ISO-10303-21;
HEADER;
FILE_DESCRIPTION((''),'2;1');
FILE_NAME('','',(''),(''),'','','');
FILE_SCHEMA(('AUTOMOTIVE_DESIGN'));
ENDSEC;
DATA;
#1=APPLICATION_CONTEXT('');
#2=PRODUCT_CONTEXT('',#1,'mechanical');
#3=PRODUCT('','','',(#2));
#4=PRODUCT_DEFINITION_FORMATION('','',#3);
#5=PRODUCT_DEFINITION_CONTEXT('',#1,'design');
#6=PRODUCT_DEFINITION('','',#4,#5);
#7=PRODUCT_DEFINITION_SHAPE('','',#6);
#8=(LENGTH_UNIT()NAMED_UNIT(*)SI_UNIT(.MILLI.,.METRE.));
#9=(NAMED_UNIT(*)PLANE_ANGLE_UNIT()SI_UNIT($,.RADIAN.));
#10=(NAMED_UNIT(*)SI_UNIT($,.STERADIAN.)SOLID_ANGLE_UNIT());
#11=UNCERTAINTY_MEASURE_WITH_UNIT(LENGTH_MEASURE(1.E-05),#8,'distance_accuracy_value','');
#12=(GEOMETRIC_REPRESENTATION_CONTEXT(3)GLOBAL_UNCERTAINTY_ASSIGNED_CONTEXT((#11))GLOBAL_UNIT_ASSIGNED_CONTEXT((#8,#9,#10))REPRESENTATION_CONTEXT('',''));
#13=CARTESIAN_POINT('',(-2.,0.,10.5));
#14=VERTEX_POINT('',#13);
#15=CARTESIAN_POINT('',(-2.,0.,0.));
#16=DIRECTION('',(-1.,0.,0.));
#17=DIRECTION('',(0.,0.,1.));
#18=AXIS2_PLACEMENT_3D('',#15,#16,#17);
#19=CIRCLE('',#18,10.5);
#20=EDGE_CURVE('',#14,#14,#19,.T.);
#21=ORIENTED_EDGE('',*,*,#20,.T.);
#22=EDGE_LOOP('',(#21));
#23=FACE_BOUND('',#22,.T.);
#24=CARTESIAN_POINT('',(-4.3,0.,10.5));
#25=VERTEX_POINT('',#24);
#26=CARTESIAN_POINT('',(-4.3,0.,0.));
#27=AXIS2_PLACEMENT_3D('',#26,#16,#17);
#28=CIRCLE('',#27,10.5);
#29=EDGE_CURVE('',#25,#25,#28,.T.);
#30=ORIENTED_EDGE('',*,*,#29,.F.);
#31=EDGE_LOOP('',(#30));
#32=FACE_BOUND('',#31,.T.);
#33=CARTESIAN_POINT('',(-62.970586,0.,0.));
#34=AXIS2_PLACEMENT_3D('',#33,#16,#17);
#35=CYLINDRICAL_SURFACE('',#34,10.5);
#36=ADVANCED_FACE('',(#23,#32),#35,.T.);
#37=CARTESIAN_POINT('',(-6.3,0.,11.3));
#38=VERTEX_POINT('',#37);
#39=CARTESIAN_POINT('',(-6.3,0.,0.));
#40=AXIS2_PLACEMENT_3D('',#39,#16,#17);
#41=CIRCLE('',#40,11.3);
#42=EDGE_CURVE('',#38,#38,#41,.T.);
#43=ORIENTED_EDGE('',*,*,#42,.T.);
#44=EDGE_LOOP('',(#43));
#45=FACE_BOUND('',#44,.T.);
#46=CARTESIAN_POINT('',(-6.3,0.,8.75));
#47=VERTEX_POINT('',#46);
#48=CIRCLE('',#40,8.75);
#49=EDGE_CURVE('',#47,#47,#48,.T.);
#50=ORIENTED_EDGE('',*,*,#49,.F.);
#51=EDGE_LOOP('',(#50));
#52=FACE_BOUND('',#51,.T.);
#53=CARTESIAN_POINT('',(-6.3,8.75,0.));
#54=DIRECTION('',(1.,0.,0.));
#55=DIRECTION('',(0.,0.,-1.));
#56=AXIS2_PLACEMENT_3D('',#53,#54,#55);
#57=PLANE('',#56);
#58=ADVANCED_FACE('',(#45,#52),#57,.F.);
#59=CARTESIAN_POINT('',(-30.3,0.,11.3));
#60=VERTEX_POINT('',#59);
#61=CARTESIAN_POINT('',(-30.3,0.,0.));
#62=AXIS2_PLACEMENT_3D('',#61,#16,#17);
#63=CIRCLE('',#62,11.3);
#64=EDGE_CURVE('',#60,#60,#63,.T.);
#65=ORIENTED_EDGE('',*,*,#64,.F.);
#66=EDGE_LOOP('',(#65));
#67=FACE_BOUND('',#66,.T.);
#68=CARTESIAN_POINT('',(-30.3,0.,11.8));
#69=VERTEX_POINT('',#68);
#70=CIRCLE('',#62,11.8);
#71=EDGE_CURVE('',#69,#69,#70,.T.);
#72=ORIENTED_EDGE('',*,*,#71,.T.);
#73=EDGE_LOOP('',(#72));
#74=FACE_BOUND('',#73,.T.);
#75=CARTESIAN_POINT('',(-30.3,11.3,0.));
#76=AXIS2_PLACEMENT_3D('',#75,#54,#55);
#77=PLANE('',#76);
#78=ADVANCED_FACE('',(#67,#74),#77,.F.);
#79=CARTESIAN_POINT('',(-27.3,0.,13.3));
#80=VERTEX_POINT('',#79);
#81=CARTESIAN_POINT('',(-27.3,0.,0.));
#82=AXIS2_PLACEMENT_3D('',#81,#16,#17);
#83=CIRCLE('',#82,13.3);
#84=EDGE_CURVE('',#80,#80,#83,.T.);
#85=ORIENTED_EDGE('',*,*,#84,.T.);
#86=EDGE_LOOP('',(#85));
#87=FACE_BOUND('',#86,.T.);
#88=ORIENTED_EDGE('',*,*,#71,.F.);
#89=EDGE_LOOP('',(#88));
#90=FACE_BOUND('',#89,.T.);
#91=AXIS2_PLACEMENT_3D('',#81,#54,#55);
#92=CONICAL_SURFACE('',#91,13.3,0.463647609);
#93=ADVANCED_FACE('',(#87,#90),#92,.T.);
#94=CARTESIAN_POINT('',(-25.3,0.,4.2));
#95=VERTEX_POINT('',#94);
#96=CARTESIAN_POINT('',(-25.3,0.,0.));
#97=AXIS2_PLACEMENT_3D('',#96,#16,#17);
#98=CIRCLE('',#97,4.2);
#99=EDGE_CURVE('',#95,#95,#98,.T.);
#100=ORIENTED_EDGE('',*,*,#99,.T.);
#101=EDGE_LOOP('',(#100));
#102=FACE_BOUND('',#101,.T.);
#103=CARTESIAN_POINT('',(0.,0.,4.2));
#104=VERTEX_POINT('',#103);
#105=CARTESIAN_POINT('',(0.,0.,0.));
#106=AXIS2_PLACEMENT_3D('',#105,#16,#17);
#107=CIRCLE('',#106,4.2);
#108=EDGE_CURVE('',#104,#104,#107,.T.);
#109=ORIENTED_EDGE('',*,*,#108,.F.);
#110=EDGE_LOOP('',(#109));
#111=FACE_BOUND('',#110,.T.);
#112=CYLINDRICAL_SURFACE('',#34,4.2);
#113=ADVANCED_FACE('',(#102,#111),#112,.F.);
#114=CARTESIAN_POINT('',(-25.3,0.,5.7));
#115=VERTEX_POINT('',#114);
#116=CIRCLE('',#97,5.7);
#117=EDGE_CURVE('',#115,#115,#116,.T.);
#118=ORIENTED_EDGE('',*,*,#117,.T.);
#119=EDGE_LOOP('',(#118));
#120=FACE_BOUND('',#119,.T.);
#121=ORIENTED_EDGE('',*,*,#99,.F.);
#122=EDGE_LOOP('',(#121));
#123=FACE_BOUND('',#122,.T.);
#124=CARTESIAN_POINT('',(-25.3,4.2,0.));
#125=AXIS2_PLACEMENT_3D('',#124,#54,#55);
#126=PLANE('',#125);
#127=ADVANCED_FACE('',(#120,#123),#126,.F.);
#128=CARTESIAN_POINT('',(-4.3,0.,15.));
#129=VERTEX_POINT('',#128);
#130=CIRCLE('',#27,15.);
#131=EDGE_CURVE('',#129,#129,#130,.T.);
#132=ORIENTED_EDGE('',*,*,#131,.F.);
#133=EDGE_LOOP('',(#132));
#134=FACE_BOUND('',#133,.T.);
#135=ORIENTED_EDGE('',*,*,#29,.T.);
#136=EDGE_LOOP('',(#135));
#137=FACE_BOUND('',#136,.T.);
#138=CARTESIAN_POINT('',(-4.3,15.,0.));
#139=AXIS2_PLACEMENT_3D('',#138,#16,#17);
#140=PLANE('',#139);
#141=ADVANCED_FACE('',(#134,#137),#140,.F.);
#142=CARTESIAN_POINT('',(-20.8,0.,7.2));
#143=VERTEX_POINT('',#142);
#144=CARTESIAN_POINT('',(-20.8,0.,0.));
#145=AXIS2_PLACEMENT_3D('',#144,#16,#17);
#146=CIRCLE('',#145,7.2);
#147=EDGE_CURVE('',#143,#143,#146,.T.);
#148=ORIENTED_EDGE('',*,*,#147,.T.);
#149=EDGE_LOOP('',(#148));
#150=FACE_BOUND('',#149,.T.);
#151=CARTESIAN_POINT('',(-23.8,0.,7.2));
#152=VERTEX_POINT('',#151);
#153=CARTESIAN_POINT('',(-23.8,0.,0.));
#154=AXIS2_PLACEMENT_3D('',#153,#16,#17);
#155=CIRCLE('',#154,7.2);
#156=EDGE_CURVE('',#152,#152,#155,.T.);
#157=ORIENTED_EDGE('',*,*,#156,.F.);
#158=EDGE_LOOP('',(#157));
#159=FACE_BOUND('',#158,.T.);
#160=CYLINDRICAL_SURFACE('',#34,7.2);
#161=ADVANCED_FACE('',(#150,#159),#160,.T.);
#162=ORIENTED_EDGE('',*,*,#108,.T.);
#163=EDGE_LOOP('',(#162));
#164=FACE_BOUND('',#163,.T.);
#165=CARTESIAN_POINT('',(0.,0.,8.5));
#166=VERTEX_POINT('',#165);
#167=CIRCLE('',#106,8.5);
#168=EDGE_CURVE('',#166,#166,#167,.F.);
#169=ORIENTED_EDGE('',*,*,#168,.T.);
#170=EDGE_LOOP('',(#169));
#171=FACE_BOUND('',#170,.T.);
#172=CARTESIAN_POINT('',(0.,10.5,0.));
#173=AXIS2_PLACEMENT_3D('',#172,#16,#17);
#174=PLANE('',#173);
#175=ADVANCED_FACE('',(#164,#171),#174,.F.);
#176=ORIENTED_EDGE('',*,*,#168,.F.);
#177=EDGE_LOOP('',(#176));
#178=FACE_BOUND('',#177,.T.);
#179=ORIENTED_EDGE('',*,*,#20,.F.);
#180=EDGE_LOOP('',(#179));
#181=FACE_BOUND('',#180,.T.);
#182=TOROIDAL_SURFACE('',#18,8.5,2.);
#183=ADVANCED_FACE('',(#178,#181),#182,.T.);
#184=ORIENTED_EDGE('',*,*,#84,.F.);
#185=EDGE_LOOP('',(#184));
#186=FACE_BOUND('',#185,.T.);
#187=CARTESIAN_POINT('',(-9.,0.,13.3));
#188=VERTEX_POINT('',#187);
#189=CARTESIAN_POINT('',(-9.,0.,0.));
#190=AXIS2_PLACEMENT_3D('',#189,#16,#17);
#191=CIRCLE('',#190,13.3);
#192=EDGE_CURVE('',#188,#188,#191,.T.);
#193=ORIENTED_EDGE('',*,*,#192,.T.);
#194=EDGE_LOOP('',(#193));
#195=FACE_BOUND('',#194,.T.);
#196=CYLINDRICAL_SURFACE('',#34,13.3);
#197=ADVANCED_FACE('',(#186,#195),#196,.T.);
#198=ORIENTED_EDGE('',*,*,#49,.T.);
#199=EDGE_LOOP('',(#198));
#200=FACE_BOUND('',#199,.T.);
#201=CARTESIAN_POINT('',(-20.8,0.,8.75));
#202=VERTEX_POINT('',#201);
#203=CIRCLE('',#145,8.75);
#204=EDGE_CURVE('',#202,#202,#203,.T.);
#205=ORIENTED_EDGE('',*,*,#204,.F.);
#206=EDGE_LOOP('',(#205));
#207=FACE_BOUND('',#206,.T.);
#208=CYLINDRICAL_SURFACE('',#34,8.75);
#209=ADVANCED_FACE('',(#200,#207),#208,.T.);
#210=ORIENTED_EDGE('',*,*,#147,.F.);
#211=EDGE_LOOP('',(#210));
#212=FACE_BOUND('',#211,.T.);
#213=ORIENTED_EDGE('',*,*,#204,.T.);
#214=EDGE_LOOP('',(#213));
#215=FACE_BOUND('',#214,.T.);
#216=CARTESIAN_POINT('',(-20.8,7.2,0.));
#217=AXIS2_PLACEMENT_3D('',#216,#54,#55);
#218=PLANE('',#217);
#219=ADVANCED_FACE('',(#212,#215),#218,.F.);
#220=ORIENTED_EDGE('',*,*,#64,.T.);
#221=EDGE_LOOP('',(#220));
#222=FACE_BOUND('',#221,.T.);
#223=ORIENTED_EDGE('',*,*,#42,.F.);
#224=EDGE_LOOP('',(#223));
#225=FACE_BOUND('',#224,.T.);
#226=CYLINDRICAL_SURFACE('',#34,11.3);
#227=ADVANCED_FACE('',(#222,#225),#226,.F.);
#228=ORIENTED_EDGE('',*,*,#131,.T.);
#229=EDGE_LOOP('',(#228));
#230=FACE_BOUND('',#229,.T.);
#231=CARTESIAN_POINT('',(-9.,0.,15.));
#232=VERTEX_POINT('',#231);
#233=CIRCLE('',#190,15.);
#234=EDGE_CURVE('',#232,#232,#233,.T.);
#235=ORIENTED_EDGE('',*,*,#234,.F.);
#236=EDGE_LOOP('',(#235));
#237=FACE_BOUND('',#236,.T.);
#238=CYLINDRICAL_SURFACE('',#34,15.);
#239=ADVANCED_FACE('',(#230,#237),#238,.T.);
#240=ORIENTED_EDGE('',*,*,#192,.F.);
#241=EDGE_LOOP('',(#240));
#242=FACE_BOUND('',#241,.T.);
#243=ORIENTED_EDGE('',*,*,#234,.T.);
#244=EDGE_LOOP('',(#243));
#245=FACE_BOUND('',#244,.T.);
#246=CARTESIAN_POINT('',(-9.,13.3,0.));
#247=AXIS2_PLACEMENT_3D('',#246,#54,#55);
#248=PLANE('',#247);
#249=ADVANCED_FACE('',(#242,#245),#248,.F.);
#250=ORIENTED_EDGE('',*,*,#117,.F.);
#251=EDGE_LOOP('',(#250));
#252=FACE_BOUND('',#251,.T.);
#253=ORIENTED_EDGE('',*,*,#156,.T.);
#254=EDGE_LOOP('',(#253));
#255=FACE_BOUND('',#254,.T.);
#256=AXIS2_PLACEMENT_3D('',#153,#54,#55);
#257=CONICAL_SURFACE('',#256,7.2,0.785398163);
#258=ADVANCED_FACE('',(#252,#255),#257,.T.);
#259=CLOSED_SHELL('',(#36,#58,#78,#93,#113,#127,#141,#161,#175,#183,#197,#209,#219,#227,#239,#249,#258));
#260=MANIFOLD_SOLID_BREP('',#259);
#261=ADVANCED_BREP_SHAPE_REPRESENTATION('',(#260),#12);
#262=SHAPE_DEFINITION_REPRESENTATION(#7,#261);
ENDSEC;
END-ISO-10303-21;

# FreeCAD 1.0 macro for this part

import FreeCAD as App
import Part
import Sketcher
from FreeCAD import Vector
Q = App.Units.Quantity


def edges_at(feature, points):
    """Names of the edges that pass closest to the given points."""
    edges = feature.Shape.Edges
    near = lambda p: min(range(len(edges)), key=lambda i: edges[i].distToShape(Part.Vertex(*p))[0])
    return sorted({f"Edge{near(p) + 1}" for p in points})


def add_polygon(sketch, points):
    """Adds a closed chain of lines whose ends are joined by coincident constraints."""
    first, n = sketch.GeometryCount, len(points)
    for a, b in zip(points, points[1:] + points[:1]):
        sketch.addGeometry(Part.LineSegment(App.Vector(*a, 0), App.Vector(*b, 0)), False)
    for i in range(n):
        sketch.addConstraint(Sketcher.Constraint("Coincident", first + i, 2, first + (i + 1) % n, 1))

doc = App.newDocument("Part")
body = doc.addObject("PartDesign::Body", "Body")

sketch1 = doc.addObject("Sketcher::SketchObject", "Sketch")
body.addObject(sketch1)
sketch1.AttachmentSupport = (doc.XY_Plane, [""])
sketch1.MapMode = "FlatFace"
add_polygon(sketch1, [(-30.3, 11.8), (-30.3, 11.3), (-6.3, 11.3), (-6.3, 8.8), (-20.8, 8.8), (-20.8, 7.2), (-23.8, 7.2), (-25.3, 5.7), (-25.3, 4.2), (0, 4.2), (0, 10.5), (-4.3, 10.5), (-4.3, 15), (-9, 15), (-9, 13.3), (-27.3, 13.3)])
sketch1.addConstraint([
    Sketcher.Constraint("Vertical", 0),
    Sketcher.Constraint("Horizontal", 1),
    Sketcher.Constraint("Vertical", 2),
    Sketcher.Constraint("Horizontal", 3),
    Sketcher.Constraint("Vertical", 4),
    Sketcher.Constraint("Horizontal", 5),
    Sketcher.Constraint("Vertical", 7),
    Sketcher.Constraint("Horizontal", 8),
    Sketcher.Constraint("Vertical", 9),
    Sketcher.Constraint("Horizontal", 10),
    Sketcher.Constraint("Vertical", 11),
    Sketcher.Constraint("Horizontal", 12),
    Sketcher.Constraint("Vertical", 13),
    Sketcher.Constraint("Horizontal", 14),
    Sketcher.Constraint("PointOnObject", 8, 2, -2),
    Sketcher.Constraint("DistanceX", 1, 1, 1, 2, Q("24 mm")),
    Sketcher.Constraint("DistanceX", 5, 2, 5, 1, Q("3 mm")),
    Sketcher.Constraint("Angle", 6, Q("-135 deg")),
    Sketcher.Constraint("DistanceX", 3, 2, 3, 1, Q("14.5 mm")),
    Sketcher.Constraint("DistanceX", 8, 1, 8, 2, Q("25.3 mm")),
    Sketcher.Constraint("DistanceX", 10, 2, 10, 1, Q("4.3 mm")),
    Sketcher.Constraint("DistanceX", 12, 2, 12, 1, Q("4.7 mm")),
    Sketcher.Constraint("DistanceX", 14, 2, 14, 1, Q("18.3 mm")),
    Sketcher.Constraint("DistanceY", 0, 2, 0, 1, Q("0.5 mm")),
    Sketcher.Constraint("DistanceY", 7, 2, 7, 1, Q("1.5 mm")),
    Sketcher.Constraint("DistanceY", 9, 1, 9, 2, Q("6.3 mm")),
    Sketcher.Constraint("DistanceY", 11, 1, 11, 2, Q("4.5 mm")),
    Sketcher.Constraint("DistanceY", 13, 2, 13, 1, Q("1.7 mm")),
    Sketcher.Constraint("DistanceY", -1, 1, 11, 2, Q("15 mm")),
    Sketcher.Constraint("DistanceX", 0, 2, 6, 2, Q("5 mm")),
    Sketcher.Constraint("DistanceY", 1, 2, 13, 2, Q("2 mm")),
    Sketcher.Constraint("DistanceY", 2, 2, 2, 1, Q("2.55 mm")),
])
revolution = doc.addObject("PartDesign::Revolution", "Revolution")
body.addObject(revolution)
revolution.Profile = sketch1
revolution.ReferenceAxis = (sketch1, ["H_Axis"])
revolution.Angle = 360
doc.recompute()

fillet = doc.addObject("PartDesign::Fillet", "Fillet")
body.addObject(fillet)
fillet.Base = (revolution, edges_at(revolution, [(0, 0, -10.5)]))
fillet.Radius = 2

doc.recompute()
